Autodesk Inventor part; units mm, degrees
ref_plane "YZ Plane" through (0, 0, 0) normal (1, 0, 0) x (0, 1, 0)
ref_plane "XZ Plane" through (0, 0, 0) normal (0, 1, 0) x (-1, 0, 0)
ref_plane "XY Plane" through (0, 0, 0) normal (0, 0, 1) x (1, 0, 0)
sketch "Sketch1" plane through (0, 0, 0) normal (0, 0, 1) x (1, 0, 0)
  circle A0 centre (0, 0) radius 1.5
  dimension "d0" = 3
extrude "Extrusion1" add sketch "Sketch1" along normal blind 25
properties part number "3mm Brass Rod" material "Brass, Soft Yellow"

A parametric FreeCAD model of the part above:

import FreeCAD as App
import Part
import Sketcher

V = App.Vector
Q = App.Units.Quantity

doc = App.newDocument("Part")
body = doc.addObject("PartDesign::Body", "Body")

# Sketch on XY plane
sketch1 = body.newObject("Sketcher::SketchObject", "Sketch")
sketch1.AttachmentSupport = (doc.getObject("XY_Plane"), [""])
sketch1.MapMode = "FlatFace"
sketch1.addGeometry(Part.Circle(V(0, 0, 0), V(0, 0, 1), 1.5), False)
sketch1.addConstraint([
    Sketcher.Constraint("Coincident", 0, 3, -1, 1),
    Sketcher.Constraint("Diameter", 0, Q("3 mm")),
])
pad1 = body.newObject("PartDesign::Pad", "Pad")
pad1.Profile = sketch1
pad1.Length = 25

doc.recompute()
